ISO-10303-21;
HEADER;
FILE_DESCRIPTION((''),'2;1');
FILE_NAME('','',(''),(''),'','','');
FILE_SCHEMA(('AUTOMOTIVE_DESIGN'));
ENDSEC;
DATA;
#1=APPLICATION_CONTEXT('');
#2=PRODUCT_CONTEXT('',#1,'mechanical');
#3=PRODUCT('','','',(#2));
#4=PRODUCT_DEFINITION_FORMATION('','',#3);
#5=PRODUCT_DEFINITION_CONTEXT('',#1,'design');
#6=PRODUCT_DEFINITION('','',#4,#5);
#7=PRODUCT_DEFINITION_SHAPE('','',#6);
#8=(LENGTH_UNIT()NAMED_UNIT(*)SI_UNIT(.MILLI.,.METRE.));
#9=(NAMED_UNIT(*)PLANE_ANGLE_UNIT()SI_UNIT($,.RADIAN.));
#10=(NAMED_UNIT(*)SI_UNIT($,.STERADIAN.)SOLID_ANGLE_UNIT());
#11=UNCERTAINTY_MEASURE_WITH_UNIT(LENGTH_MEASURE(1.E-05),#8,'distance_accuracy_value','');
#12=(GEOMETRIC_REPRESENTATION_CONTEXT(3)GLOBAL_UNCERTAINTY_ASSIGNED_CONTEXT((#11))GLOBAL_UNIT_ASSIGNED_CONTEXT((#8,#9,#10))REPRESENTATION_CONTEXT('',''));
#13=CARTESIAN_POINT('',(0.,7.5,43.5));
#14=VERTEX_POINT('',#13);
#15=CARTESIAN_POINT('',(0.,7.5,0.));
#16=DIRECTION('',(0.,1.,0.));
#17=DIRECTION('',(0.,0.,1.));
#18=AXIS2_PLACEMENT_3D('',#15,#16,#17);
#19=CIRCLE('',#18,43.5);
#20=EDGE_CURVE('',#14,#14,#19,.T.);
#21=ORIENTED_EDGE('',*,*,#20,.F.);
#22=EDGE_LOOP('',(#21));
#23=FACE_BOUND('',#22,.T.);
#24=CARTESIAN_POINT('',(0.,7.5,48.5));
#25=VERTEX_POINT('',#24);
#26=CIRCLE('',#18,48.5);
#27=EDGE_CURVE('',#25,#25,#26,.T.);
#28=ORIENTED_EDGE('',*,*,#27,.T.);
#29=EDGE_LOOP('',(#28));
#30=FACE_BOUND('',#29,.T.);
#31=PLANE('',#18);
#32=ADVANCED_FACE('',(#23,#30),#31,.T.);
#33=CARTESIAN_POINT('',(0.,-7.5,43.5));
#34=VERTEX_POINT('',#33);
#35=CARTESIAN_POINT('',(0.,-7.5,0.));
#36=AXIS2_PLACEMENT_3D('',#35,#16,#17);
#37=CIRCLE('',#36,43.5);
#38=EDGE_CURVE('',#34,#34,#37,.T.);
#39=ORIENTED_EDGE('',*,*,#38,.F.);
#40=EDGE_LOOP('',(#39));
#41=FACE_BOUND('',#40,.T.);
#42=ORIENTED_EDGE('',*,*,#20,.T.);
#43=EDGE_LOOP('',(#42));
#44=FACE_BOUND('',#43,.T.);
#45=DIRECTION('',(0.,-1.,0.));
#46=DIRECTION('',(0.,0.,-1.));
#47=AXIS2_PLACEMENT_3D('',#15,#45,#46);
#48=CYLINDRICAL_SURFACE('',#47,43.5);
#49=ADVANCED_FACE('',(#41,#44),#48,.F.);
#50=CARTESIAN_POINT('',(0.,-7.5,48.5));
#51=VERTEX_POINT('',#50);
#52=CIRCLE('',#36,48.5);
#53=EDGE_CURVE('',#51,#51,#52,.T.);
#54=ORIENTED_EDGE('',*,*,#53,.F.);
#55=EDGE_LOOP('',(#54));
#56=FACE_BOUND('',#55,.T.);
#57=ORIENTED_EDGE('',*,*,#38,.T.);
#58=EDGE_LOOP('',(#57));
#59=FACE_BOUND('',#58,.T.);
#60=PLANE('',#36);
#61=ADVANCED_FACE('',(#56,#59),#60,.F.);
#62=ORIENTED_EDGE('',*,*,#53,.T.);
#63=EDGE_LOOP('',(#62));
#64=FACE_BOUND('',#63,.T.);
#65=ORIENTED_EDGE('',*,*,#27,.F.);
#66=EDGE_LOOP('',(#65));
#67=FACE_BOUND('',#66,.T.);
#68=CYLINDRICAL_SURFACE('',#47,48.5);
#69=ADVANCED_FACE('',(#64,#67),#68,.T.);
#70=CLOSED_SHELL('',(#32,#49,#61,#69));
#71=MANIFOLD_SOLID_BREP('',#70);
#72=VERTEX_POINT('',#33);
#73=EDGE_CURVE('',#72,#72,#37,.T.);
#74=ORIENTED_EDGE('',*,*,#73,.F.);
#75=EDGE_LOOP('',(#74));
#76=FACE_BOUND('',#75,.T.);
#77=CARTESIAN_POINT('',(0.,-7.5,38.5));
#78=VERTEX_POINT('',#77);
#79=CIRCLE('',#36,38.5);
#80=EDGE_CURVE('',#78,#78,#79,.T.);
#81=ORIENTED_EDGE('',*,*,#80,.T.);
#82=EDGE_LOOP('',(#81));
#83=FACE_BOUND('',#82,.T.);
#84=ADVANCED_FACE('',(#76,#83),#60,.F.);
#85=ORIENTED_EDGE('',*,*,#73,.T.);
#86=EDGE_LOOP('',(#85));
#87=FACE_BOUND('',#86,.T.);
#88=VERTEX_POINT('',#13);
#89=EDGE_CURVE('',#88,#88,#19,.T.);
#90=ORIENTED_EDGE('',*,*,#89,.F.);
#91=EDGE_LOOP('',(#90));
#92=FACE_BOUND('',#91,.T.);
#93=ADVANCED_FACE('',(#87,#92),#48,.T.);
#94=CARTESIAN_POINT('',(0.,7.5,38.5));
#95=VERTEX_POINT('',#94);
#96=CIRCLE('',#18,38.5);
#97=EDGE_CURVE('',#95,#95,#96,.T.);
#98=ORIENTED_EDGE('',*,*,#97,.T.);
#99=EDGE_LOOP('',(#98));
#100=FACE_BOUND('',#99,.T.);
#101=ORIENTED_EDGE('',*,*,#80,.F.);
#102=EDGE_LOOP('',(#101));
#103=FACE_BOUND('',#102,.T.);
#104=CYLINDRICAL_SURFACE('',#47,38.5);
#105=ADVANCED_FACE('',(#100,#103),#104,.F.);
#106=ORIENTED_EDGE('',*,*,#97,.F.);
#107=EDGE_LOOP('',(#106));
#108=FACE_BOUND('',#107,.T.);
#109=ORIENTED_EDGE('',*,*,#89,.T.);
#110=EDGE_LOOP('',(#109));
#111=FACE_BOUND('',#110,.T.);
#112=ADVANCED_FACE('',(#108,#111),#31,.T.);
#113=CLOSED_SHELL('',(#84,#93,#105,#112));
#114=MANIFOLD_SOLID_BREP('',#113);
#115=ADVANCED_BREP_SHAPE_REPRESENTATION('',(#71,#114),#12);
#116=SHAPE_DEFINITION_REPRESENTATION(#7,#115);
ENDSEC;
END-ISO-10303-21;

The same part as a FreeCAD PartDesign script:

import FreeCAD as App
import Part
import Sketcher
Q = App.Units.Quantity

doc = App.newDocument("Part")
params = doc.addObject("Spreadsheet::Sheet", "Params")
for row, (alias, value) in enumerate([
    ("sketch1_diameter", "87 mm"),
    ("sketch1_diameter2", "77 mm"),
    ("pad1_length", "15 mm"),
    ("sketch2_diameter", "97 mm"),
    ("sketch2_diameter2", "87 mm"),
    ("pad2_length", "15 mm"),
], start=1):
    params.set(f"A{row}", alias)
    params.set(f"B{row}", "=" + value)
    params.setAlias(f"B{row}", alias)

body = doc.addObject("PartDesign::Body", "Body")

# Sketch on XZ plane
sketch1 = doc.addObject("Sketcher::SketchObject", "Sketch")
body.addObject(sketch1)
sketch1.AttachmentSupport = (doc.XZ_Plane, [""])
sketch1.MapMode = "FlatFace"
sketch1.addGeometry([
    Part.Circle(App.Vector(0, 0, 0), App.Vector(0, 0, 1), 44),
    Part.Circle(App.Vector(0, 0, 0), App.Vector(0, 0, 1), 38),
], False)
sketch1.addConstraint([
    Sketcher.Constraint("Coincident", 0, 3, -1, 1),
    Sketcher.Constraint("Coincident", 1, 3, -1, 1),
    Sketcher.Constraint("Diameter", 0, Q("87 mm")),
    Sketcher.Constraint("Diameter", 1, Q("77 mm")),
])
sketch1.setExpression("Constraints[2]", "Params.sketch1_diameter")
sketch1.setExpression("Constraints[3]", "Params.sketch1_diameter2")
pad1 = doc.addObject("PartDesign::Pad", "Pad")
body.addObject(pad1)
pad1.Profile = sketch1
pad1.setExpression("Length", "Params.pad1_length")
pad1.Midplane = True
body2 = doc.addObject("PartDesign::Body", "Body001")

# Sketch on XZ plane
sketch2 = doc.addObject("Sketcher::SketchObject", "Sketch001")
body2.addObject(sketch2)
sketch2.AttachmentSupport = (doc.getObject("XZ_Plane001"), [""])
sketch2.MapMode = "FlatFace"
sketch2.addGeometry([
    Part.Circle(App.Vector(0, 0, 0), App.Vector(0, 0, 1), 48),
    Part.Circle(App.Vector(0, 0, 0), App.Vector(0, 0, 1), 44),
], False)
sketch2.addConstraint([
    Sketcher.Constraint("Coincident", 0, 3, -1, 1),
    Sketcher.Constraint("Coincident", 1, 3, -1, 1),
    Sketcher.Constraint("Diameter", 0, Q("97 mm")),
    Sketcher.Constraint("Diameter", 1, Q("87 mm")),
])
sketch2.setExpression("Constraints[2]", "Params.sketch2_diameter")
sketch2.setExpression("Constraints[3]", "Params.sketch2_diameter2")
pad2 = doc.addObject("PartDesign::Pad", "Pad001")
body2.addObject(pad2)
pad2.Profile = sketch2
pad2.setExpression("Length", "Params.pad2_length")
pad2.Midplane = True

doc.recompute()
